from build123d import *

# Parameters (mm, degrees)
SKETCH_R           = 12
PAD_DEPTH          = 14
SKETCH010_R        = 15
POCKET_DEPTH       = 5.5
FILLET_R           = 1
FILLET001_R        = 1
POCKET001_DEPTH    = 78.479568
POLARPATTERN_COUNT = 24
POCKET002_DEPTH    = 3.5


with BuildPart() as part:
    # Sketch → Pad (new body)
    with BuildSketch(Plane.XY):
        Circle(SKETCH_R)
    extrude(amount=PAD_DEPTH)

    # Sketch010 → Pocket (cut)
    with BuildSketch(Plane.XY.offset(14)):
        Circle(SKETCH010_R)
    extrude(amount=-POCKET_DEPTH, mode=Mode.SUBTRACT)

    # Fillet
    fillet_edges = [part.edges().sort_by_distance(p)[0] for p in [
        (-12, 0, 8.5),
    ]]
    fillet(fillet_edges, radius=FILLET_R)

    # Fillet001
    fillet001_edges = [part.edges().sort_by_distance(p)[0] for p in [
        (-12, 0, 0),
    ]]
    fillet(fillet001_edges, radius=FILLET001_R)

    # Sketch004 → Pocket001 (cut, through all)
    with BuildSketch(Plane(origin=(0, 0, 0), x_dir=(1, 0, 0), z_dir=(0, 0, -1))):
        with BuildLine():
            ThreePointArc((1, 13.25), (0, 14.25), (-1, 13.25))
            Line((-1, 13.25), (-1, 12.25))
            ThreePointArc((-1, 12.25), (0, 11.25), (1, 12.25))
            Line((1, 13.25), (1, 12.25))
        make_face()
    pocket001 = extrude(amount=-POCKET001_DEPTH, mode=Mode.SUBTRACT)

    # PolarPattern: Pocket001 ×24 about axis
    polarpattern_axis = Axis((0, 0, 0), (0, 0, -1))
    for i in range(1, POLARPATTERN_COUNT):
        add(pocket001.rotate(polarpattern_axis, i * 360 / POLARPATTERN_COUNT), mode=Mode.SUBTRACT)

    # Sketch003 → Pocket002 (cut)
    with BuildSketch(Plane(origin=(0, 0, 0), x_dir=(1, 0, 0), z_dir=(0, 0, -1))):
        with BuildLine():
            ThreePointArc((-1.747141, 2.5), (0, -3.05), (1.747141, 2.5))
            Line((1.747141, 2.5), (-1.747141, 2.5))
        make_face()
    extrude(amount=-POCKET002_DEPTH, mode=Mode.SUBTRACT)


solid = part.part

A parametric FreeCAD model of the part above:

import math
import FreeCAD as App
import Part
import Sketcher


def edges_at(feature, points):
    """Names of the edges that pass closest to the given points."""
    edges = feature.Shape.Edges
    near = lambda p: min(range(len(edges)), key=lambda i: edges[i].distToShape(Part.Vertex(*p))[0])
    return sorted({f"Edge{near(p) + 1}" for p in points})

doc = App.newDocument("Part")
body = doc.addObject("PartDesign::Body", "Body")

sketch1 = doc.addObject("Sketcher::SketchObject", "Sketch")
body.addObject(sketch1)
sketch1.AttachmentSupport = (doc.XY_Plane, [""])
sketch1.MapMode = "FlatFace"
sketch1.addGeometry(Part.Circle(App.Vector(0, 0, 0), App.Vector(0, 0, 1), 12), False)
sketch1.addConstraint([
    Sketcher.Constraint("Coincident", 0, 3, -1, 1),
    Sketcher.Constraint("Diameter", 0, 24.0),
])
pad1 = doc.addObject("PartDesign::Pad", "Pad")
body.addObject(pad1)
pad1.Profile = sketch1
pad1.Length = 14

sketch2 = doc.addObject("Sketcher::SketchObject", "Sketch001")
body.addObject(sketch2)
sketch2.AttachmentSupport = (doc.XY_Plane, [""])
sketch2.MapMode = "FlatFace"
sketch2.AttachmentOffset = App.Placement(App.Vector(0, 0, 14), App.Rotation())
sketch2.addGeometry(Part.Circle(App.Vector(0, 0, 0), App.Vector(0, 0, 1), 15), False)
sketch2.addConstraint([
    Sketcher.Constraint("Coincident", 0, 3, -1, 1),
    Sketcher.Constraint("Diameter", 0, 30.0),
])
pocket1 = doc.addObject("PartDesign::Pocket", "Pocket")
body.addObject(pocket1)
pocket1.Profile = sketch2
pocket1.Length = 5.5
doc.recompute()

fillet = doc.addObject("PartDesign::Fillet", "Fillet")
body.addObject(fillet)
fillet.Base = (pocket1, edges_at(pocket1, [(-12, 0, 8.5)]))
fillet.Radius = 1
doc.recompute()

fillet2 = doc.addObject("PartDesign::Fillet", "Fillet001")
body.addObject(fillet2)
fillet2.Base = (fillet, edges_at(fillet, [(-12, 0, 0)]))
fillet2.Radius = 1

sketch3 = doc.addObject("Sketcher::SketchObject", "Sketch002")
body.addObject(sketch3)
sketch3.AttachmentSupport = (doc.XY_Plane, [""])
sketch3.MapMode = "FlatFace"
sketch3.addGeometry([
    Part.ArcOfCircle(Part.Circle(App.Vector(0, -13.2, 0), App.Vector(0, 0, 1), 1), math.radians(180), math.radians(360)),
    Part.LineSegment(App.Vector(-1, -13.2, 0), App.Vector(-1, -12.2, 0)),
    Part.ArcOfCircle(Part.Circle(App.Vector(0, -12.2, 0), App.Vector(0, 0, 1), 1), math.radians(0), math.radians(180)),
    Part.LineSegment(App.Vector(1, -12.2, 0), App.Vector(1, -13.2, 0)),
], False)
sketch3.addConstraint([
    Sketcher.Constraint("Tangent", 0, 1, 1, 1),
    Sketcher.Constraint("Tangent", 1, 2, 2, 2),
    Sketcher.Constraint("Tangent", 2, 1, 3, 1),
    Sketcher.Constraint("Tangent", 3, 2, 0, 2),
    Sketcher.Constraint("Vertical", 1),
    Sketcher.Constraint("Vertical", 3),
    Sketcher.Constraint("PointOnObject", 0, 3, -2),
    Sketcher.Constraint("Radius", 0, 1.0),
    Sketcher.Constraint("DistanceY", 1, 1, 1, 2, 1.0),
    Sketcher.Constraint("DistanceY", 0, 3, -1, 1, 13.25),
])
pocket2 = doc.addObject("PartDesign::Pocket", "Pocket001")
body.addObject(pocket2)
pocket2.Profile = sketch3
pocket2.Type = "ThroughAll"
pocket2.Reversed = True
doc.recompute()

polarpattern = doc.addObject("PartDesign::PolarPattern", "PolarPattern")
body.addObject(polarpattern)
polarpattern.Originals = [pocket2]
polarpattern.Axis = (doc.Z_Axis, [""])
polarpattern.Angle = 360
polarpattern.Occurrences = 24
body.Tip = polarpattern

sketch4 = doc.addObject("Sketcher::SketchObject", "Sketch003")
body.addObject(sketch4)
sketch4.AttachmentSupport = (doc.XY_Plane, [""])
sketch4.MapMode = "FlatFace"
sketch4.addGeometry([
    Part.ArcOfCircle(Part.Circle(App.Vector(0, 0, 0), App.Vector(0, 0, 1), 3.1), math.radians(-55), math.radians(235)),
    Part.LineSegment(App.Vector(1.7, -2.5, 0), App.Vector(-1.7, -2.5, 0)),
], False)
sketch4.addConstraint([
    Sketcher.Constraint("Coincident", 0, 1, 1, 1),
    Sketcher.Constraint("Coincident", 1, 2, 0, 2),
    Sketcher.Constraint("Horizontal", 1),
    Sketcher.Constraint("Coincident", 0, 3, -1, 1),
    Sketcher.Constraint("Radius", 0, 3.05),
    Sketcher.Constraint("DistanceY", 0, 1, -1, 1, 2.5),
])
pocket3 = doc.addObject("PartDesign::Pocket", "Pocket002")
body.addObject(pocket3)
pocket3.Profile = sketch4
pocket3.Length = 3.5
pocket3.Reversed = True

doc.recompute()
